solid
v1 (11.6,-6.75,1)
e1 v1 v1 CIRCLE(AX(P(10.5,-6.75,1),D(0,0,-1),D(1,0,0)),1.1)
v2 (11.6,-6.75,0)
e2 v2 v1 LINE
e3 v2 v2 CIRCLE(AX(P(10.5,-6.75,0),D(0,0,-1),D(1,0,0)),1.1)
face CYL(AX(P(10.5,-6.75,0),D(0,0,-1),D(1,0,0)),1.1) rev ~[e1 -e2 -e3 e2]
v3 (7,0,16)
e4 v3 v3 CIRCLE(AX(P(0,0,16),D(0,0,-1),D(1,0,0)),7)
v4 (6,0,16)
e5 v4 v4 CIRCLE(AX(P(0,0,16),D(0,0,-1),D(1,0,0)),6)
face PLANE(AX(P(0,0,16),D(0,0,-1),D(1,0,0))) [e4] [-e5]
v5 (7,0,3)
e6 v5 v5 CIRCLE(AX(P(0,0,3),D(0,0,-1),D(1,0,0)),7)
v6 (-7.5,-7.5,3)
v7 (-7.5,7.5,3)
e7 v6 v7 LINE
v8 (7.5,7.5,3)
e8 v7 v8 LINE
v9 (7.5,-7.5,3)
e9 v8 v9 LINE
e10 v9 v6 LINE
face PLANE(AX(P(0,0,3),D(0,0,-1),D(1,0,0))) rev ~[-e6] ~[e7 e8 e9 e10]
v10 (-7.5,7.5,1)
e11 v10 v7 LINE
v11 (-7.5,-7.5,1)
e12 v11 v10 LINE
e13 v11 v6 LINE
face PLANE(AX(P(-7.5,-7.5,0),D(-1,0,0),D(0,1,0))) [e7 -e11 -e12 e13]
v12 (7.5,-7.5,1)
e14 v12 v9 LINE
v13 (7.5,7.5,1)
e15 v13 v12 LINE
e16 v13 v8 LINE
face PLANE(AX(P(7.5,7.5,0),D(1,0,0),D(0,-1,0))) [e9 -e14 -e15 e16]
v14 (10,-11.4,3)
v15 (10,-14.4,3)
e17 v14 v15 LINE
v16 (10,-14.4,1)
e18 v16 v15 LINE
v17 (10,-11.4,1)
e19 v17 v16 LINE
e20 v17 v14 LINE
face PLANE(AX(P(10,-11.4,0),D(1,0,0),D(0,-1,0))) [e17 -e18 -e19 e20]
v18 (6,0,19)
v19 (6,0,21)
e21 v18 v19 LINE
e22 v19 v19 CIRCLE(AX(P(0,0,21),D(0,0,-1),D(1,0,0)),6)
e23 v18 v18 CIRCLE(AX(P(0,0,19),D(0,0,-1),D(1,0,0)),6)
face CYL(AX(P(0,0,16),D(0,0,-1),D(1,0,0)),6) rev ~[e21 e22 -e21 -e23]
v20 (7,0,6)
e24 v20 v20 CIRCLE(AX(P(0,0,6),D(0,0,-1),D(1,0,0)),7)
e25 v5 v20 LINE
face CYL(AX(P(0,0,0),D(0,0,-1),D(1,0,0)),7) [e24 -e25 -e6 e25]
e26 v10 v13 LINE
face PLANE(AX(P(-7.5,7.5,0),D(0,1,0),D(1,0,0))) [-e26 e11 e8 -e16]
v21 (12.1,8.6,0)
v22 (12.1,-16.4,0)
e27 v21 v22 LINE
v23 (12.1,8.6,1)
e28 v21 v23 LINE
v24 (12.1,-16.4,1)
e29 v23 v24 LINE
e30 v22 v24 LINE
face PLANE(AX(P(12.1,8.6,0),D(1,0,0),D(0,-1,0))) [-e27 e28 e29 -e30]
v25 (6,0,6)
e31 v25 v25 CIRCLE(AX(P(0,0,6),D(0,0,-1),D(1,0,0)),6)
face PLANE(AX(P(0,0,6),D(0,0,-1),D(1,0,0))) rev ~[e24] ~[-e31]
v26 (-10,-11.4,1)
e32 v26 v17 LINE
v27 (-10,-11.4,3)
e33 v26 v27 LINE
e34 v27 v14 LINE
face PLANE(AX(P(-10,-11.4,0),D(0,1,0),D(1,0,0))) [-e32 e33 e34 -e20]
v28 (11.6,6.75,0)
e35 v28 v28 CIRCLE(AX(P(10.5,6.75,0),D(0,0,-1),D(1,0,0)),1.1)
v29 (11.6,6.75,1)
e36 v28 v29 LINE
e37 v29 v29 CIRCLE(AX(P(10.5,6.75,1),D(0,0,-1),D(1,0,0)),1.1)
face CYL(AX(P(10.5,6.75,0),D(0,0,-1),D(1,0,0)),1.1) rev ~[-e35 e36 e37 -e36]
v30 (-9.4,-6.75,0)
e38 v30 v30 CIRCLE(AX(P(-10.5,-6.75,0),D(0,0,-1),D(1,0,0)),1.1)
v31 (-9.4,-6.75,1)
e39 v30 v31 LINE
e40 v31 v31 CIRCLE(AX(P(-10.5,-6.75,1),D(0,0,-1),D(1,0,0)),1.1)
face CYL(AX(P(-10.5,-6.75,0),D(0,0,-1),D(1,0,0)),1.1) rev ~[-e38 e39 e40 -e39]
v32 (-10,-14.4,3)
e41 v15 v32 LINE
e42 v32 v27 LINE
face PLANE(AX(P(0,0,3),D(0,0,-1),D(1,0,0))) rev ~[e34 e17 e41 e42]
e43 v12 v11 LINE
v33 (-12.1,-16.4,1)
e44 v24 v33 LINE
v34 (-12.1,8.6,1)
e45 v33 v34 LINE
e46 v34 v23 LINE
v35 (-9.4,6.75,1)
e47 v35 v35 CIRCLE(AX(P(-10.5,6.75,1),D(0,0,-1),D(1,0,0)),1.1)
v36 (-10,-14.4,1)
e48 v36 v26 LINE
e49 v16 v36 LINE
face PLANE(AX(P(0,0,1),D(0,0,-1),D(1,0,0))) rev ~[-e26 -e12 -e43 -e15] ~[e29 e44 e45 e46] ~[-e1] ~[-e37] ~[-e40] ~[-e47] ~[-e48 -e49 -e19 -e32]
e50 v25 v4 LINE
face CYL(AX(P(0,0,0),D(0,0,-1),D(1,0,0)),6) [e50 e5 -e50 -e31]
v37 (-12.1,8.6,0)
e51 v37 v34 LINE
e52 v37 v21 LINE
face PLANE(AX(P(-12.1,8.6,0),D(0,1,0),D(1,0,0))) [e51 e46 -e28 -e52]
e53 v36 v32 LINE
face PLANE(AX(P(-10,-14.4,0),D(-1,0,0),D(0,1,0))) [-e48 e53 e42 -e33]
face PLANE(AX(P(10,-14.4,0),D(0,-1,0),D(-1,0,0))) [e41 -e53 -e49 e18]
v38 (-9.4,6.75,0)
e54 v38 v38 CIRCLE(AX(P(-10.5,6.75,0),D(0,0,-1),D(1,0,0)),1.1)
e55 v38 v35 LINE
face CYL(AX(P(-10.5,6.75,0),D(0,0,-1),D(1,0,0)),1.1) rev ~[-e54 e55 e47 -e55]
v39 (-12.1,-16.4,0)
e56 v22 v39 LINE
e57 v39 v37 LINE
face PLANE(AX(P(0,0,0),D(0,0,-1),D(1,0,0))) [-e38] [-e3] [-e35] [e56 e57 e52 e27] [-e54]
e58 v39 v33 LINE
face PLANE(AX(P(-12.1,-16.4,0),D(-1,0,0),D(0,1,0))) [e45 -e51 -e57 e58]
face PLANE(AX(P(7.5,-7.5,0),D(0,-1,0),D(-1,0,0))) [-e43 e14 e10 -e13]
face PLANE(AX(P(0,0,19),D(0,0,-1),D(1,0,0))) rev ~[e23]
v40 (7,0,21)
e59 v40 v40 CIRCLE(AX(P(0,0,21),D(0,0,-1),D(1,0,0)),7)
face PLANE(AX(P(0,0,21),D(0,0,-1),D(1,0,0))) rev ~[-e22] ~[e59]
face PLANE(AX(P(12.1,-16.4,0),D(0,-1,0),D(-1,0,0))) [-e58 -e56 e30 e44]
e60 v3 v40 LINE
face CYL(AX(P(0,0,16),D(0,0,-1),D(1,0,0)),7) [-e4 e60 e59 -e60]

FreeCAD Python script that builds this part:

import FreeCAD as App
import Part
import Sketcher

V = App.Vector

doc = App.newDocument("Part")
body = doc.addObject("PartDesign::Body", "Body")

sketch1 = body.newObject("Sketcher::SketchObject", "Sketch")
sketch1.AttachmentSupport = (doc.getObject("XY_Plane"), [""])
sketch1.MapMode = "FlatFace"
sketch1.addGeometry([
    Part.LineSegment(V(-12.1, 8.6, 0), V(12.1, 8.6, 0)),
    Part.LineSegment(V(12.1, 8.6, 0), V(12.1, -16.4, 0)),
    Part.LineSegment(V(12.1, -16.4, 0), V(-12.1, -16.4, 0)),
    Part.LineSegment(V(-12.1, -16.4, 0), V(-12.1, 8.6, 0)),
    Part.Circle(V(-10.5, 6.8, 0), V(0, 0, 1), 1.1),
    Part.Circle(V(10.5, 6.8, 0), V(0, 0, 1), 1.1),
    Part.LineSegment(V(-7.5, -7.5, 0), V(7.5, -7.5, 0)),
    Part.LineSegment(V(7.5, -7.5, 0), V(7.5, 7.5, 0)),
    Part.LineSegment(V(7.5, 7.5, 0), V(-7.5, 7.5, 0)),
    Part.LineSegment(V(-7.5, 7.5, 0), V(-7.5, -7.5, 0)),
    Part.Circle(V(-10.5, -6.8, 0), V(0, 0, 1), 1.1),
    Part.Circle(V(10.5, -6.8, 0), V(0, 0, 1), 1.1),
    Part.LineSegment(V(-10, -14.4, 0), V(10, -14.4, 0)),
    Part.LineSegment(V(10, -14.4, 0), V(10, -11.4, 0)),
    Part.LineSegment(V(10, -11.4, 0), V(-10, -11.4, 0)),
    Part.LineSegment(V(-10, -11.4, 0), V(-10, -14.4, 0)),
], False)
sketch1.addConstraint([
    Sketcher.Constraint("Coincident", 0, 2, 1, 1),
    Sketcher.Constraint("Coincident", 1, 2, 2, 1),
    Sketcher.Constraint("Coincident", 2, 2, 3, 1),
    Sketcher.Constraint("Coincident", 3, 2, 0, 1),
    Sketcher.Constraint("Coincident", 6, 2, 7, 1),
    Sketcher.Constraint("Coincident", 7, 2, 8, 1),
    Sketcher.Constraint("Coincident", 8, 2, 9, 1),
    Sketcher.Constraint("Coincident", 9, 2, 6, 1),
    Sketcher.Constraint("Coincident", 12, 2, 13, 1),
    Sketcher.Constraint("Coincident", 13, 2, 14, 1),
    Sketcher.Constraint("Coincident", 14, 2, 15, 1),
    Sketcher.Constraint("Coincident", 15, 2, 12, 1),
    Sketcher.Constraint("Horizontal", 0),
    Sketcher.Constraint("Vertical", 1),
    Sketcher.Constraint("Horizontal", 2),
    Sketcher.Constraint("Vertical", 3),
    Sketcher.Constraint("Horizontal", 6),
    Sketcher.Constraint("Vertical", 7),
    Sketcher.Constraint("Horizontal", 8),
    Sketcher.Constraint("Vertical", 9),
    Sketcher.Constraint("Horizontal", 12),
    Sketcher.Constraint("Vertical", 13),
    Sketcher.Constraint("Horizontal", 14),
    Sketcher.Constraint("Vertical", 15),
    Sketcher.Constraint("Equal", 4, 5),
    Sketcher.Constraint("Equal", 5, 10),
    Sketcher.Constraint("Equal", 10, 11),
    Sketcher.Constraint("Symmetric", 5, 3, 10, 3, -1, 1),
    Sketcher.Constraint("Symmetric", 4, 3, 11, 3, -1, 1),
    Sketcher.Constraint("Symmetric", 6, 2, 8, 2, -1, 1),
    Sketcher.Constraint("Symmetric", 4, 3, 5, 3, -2),
    Sketcher.Constraint("Equal", 8, 7),
    Sketcher.Constraint("DistanceX", 6, 1, 6, 2, 15.0),
    Sketcher.Constraint("DistanceX", 12, 1, 12, 2, 20.0),
    Sketcher.Constraint("DistanceY", 13, 1, 13, 2, 3.0),
    Sketcher.Constraint("DistanceX", 6, 2, 11, 3, 3.0),
    Sketcher.Constraint("DistanceY", 1, 2, 12, 2, 2.0),
    Sketcher.Constraint("Diameter", 4, 2.2),
    Sketcher.Constraint("DistanceY", 1, 2, 1, 1, 25.0),
    Sketcher.Constraint("DistanceX", 0, 1, 0, 2, 24.2),
    Sketcher.Constraint("DistanceX", -1, 1, 12, 2, 10.0),
    Sketcher.Constraint("DistanceX", -1, 1, 0, 2, 12.1),
    Sketcher.Constraint("DistanceY", -1, 1, 0, 2, 8.6),
    Sketcher.Constraint("DistanceY", 10, 3, 4, 3, 13.5),
])
pad1 = body.newObject("PartDesign::Pad", "Pad")
pad1.Profile = sketch1
pad1.Length = 1

sketch2 = body.newObject("Sketcher::SketchObject", "Sketch001")
sketch2.AttachmentSupport = (doc.getObject("XY_Plane"), [""])
sketch2.MapMode = "FlatFace"
sketch2.addGeometry([
    Part.LineSegment(V(10, -11.4, 0), V(10, -14.4, 0)),
    Part.LineSegment(V(10, -14.4, 0), V(-10, -14.4, 0)),
    Part.LineSegment(V(-10, -14.4, 0), V(-10, -11.4, 0)),
    Part.LineSegment(V(-10, -11.4, 0), V(10, -11.4, 0)),
], False)
sketch2.addConstraint([
    Sketcher.Constraint("Coincident", 0, 2, 1, 1),
    Sketcher.Constraint("Coincident", 1, 2, 2, 1),
    Sketcher.Constraint("Coincident", 2, 2, 3, 1),
    Sketcher.Constraint("Coincident", 3, 2, 0, 1),
    Sketcher.Constraint("Vertical", 0),
    Sketcher.Constraint("Horizontal", 1),
    Sketcher.Constraint("Vertical", 2),
    Sketcher.Constraint("Horizontal", 3),
    Sketcher.Constraint("DistanceX", 1, 2, 1, 1, 20.0),
    Sketcher.Constraint("DistanceY", 0, 2, 0, 1, 3.0),
    Sketcher.Constraint("DistanceX", -1, 1, 0, 2, 10.0),
    Sketcher.Constraint("DistanceY", 0, 2, -1, 1, 14.4),
])
pad2 = body.newObject("PartDesign::Pad", "Pad001")
pad2.Profile = sketch2
pad2.Length = 3

sketch3 = body.newObject("Sketcher::SketchObject", "Sketch002")
sketch3.AttachmentSupport = (doc.getObject("XY_Plane"), [""])
sketch3.MapMode = "FlatFace"
sketch3.addGeometry([
    Part.LineSegment(V(8, 8, 0), V(8, -8, 0)),
    Part.LineSegment(V(8, -8, 0), V(-8, -8, 0)),
    Part.LineSegment(V(-8, -8, 0), V(-8, 8, 0)),
    Part.LineSegment(V(-8, 8, 0), V(8, 8, 0)),
    Part.Circle(V(0, 0, 0), V(0, 0, 1), 7),
], False)
sketch3.addConstraint([
    Sketcher.Constraint("Coincident", 0, 2, 1, 1),
    Sketcher.Constraint("Coincident", 1, 2, 2, 1),
    Sketcher.Constraint("Coincident", 2, 2, 3, 1),
    Sketcher.Constraint("Coincident", 3, 2, 0, 1),
    Sketcher.Constraint("Vertical", 0),
    Sketcher.Constraint("Horizontal", 1),
    Sketcher.Constraint("Vertical", 2),
    Sketcher.Constraint("Horizontal", 3),
    Sketcher.Constraint("Coincident", 4, 3, -1, 1),
    Sketcher.Constraint("Symmetric", 0, 2, 2, 2, -1, 1),
    Sketcher.Constraint("Equal", 3, 0),
    Sketcher.Constraint("Diameter", 4, 14.0),
    Sketcher.Constraint("DistanceX", 1, 2, 1, 1, 15.0),
])
pad3 = body.newObject("PartDesign::Pad", "Pad002")
pad3.Profile = sketch3
pad3.Length = 3

sketch4 = body.newObject("Sketcher::SketchObject", "Sketch003")
sketch4.AttachmentSupport = (doc.getObject("XY_Plane"), [""])
sketch4.MapMode = "FlatFace"
sketch4.addGeometry([
    Part.Circle(V(0, 0, 0), V(0, 0, 1), 7),
    Part.Circle(V(0, 0, 0), V(0, 0, 1), 6),
], False)
sketch4.addConstraint([
    Sketcher.Constraint("Coincident", 0, 3, -1, 1),
    Sketcher.Constraint("Coincident", 1, 3, -1, 1),
    Sketcher.Constraint("Diameter", 0, 14.0),
    Sketcher.Constraint("Diameter", 1, 12.0),
])
pad4 = body.newObject("PartDesign::Pad", "Pad003")
pad4.Profile = sketch4
pad4.Length = 6

sketch5 = body.newObject("Sketcher::SketchObject", "Sketch004")
sketch5.AttachmentSupport = (doc.getObject("XY_Plane"), [""])
sketch5.MapMode = "FlatFace"
sketch5.addGeometry(Part.Circle(V(0, 0, 0), V(0, 0, 1), 6), False)
sketch5.addConstraint([
    Sketcher.Constraint("Coincident", 0, 3, -1, 1),
    Sketcher.Constraint("Diameter", 0, 12.0),
])
pad5 = body.newObject("PartDesign::Pad", "Pad004")
pad5.Profile = sketch5
pad5.Length = 19

sketch6 = body.newObject("Sketcher::SketchObject", "Sketch005")
sketch6.AttachmentSupport = (doc.getObject("XY_Plane"), [""])
sketch6.MapMode = "FlatFace"
sketch6.AttachmentOffset = App.Placement(V(0, 0, 16), App.Rotation())
sketch6.addGeometry([
    Part.Circle(V(0, 0, 0), V(0, 0, 1), 7),
    Part.Circle(V(0, 0, 0), V(0, 0, 1), 6),
], False)
sketch6.addConstraint([
    Sketcher.Constraint("Coincident", 0, 3, -1, 1),
    Sketcher.Constraint("Coincident", 1, 3, -1, 1),
    Sketcher.Constraint("Diameter", 0, 14.0),
    Sketcher.Constraint("Diameter", 1, 12.0),
])
pad6 = body.newObject("PartDesign::Pad", "Pad005")
pad6.Profile = sketch6
pad6.Length = 5

doc.recompute()
